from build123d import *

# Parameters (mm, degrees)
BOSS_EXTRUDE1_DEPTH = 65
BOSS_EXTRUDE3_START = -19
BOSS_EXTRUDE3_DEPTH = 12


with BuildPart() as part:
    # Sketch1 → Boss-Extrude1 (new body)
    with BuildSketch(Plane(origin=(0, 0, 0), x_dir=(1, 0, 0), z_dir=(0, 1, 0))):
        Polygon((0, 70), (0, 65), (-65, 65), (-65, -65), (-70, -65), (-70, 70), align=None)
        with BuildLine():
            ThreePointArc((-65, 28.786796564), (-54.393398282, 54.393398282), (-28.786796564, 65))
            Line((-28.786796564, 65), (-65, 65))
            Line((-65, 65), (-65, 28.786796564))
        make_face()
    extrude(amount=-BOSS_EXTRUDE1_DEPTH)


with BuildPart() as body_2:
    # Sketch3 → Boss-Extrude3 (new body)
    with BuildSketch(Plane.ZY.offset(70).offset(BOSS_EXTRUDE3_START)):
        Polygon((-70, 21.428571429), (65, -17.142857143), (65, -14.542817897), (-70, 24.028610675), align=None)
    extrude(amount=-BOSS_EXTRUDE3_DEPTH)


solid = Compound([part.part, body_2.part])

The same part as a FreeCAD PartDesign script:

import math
import FreeCAD as App
import Part
import Sketcher
from FreeCAD import Vector

doc = App.newDocument("Part")
body = doc.addObject("PartDesign::Body", "Body")

# Sketch on XZ plane
sketch1 = body.newObject("Sketcher::SketchObject", "Sketch")
sketch1.AttachmentSupport = (doc.getObject("XZ_Plane"), [""])
sketch1.MapMode = "FlatFace"
sketch1.addGeometry([
    Part.LineSegment(Vector(0, -65, 0), Vector(0, -70, 0)),  # 0
    Part.LineSegment(Vector(0, -70, 0), Vector(-70, -70, 0)),  # 1
    Part.LineSegment(Vector(-70, -70, 0), Vector(-70, 65, 0)),  # 2
    Part.LineSegment(Vector(-70, 65, 0), Vector(-65, 65, 0)),  # 3
    Part.LineSegment(Vector(-65, 65, 0), Vector(-65, -29, 0)),  # 4
    Part.ArcOfCircle(Part.Circle(Vector(-29, -29, 0), Vector(0, 0, 1), 36), math.radians(180), math.radians(270)),  # 5
    Part.LineSegment(Vector(-29, -65, 0), Vector(0, -65, 0)),  # 6
], False)
sketch1.addConstraint([
    Sketcher.Constraint("Coincident", 0, 2, 1, 1),
    Sketcher.Constraint("Coincident", 1, 2, 2, 1),
    Sketcher.Constraint("Coincident", 2, 2, 3, 1),
    Sketcher.Constraint("Coincident", 3, 2, 4, 1),
    Sketcher.Constraint("Tangent", 4, 2, 5, 1),
    Sketcher.Constraint("Tangent", 5, 2, 6, 1),
    Sketcher.Constraint("Coincident", 6, 2, 0, 1),
    Sketcher.Constraint("Vertical", 0),
    Sketcher.Constraint("Horizontal", 1),
    Sketcher.Constraint("Vertical", 2),
    Sketcher.Constraint("Horizontal", 3),
    Sketcher.Constraint("Vertical", 4),
    Sketcher.Constraint("Horizontal", 6),
    Sketcher.Constraint("PointOnObject", 0, 2, -2),
    Sketcher.Constraint("Equal", 3, 0),
    Sketcher.Constraint("DistanceX", 1, 2, 1, 1, 70.0),
    Sketcher.Constraint("DistanceX", 3, 1, 3, 2, 5.0),
    Sketcher.Constraint("DistanceY", 2, 1, 2, 2, 135.0),
    Sketcher.Constraint("DistanceY", 0, 2, -1, 1, 70.0),
    Sketcher.Constraint("Radius", 5, 36.213203),
])
pad1 = body.newObject("PartDesign::Pad", "Pad")
pad1.Profile = sketch1
pad1.Length = 65
body2 = doc.addObject("PartDesign::Body", "Body001")

# Sketch on YZ plane
sketch2 = body2.newObject("Sketcher::SketchObject", "Sketch001")
sketch2.AttachmentSupport = (doc.getObject("YZ_Plane001"), [""])
sketch2.MapMode = "FlatFace"
sketch2.AttachmentOffset = App.Placement(Vector(0, 0, -51), App.Rotation())
sketch2.addGeometry([
    Part.LineSegment(Vector(21.4, -70, 0), Vector(-17.1, 65, 0)),
    Part.LineSegment(Vector(-17.1, 65, 0), Vector(-14.5, 65, 0)),
    Part.LineSegment(Vector(-14.5, 65, 0), Vector(24, -70, 0)),
    Part.LineSegment(Vector(24, -70, 0), Vector(21.4, -70, 0)),
], False)
sketch2.addConstraint([
    Sketcher.Constraint("Coincident", 0, 2, 1, 1),
    Sketcher.Constraint("Coincident", 1, 2, 2, 1),
    Sketcher.Constraint("Coincident", 2, 2, 3, 1),
    Sketcher.Constraint("Coincident", 3, 2, 0, 1),
    Sketcher.Constraint("Horizontal", 1),
    Sketcher.Constraint("Horizontal", 3),
    Sketcher.Constraint("Parallel", 0, 2),
    Sketcher.Constraint("DistanceY", -1, 1, 0, 2, 65.0),
    Sketcher.Constraint("DistanceY", 2, 2, -1, 1, 70.0),
    Sketcher.Constraint("DistanceX", 1, 1, 1, 2, 2.600039),
    Sketcher.Constraint("Distance", 0, 140.402119),
    Sketcher.Constraint("DistanceX", -1, 1, 2, 2, 24.028611),
])
pad2 = body2.newObject("PartDesign::Pad", "Pad001")
pad2.Profile = sketch2
pad2.Length = 12

doc.recompute()
